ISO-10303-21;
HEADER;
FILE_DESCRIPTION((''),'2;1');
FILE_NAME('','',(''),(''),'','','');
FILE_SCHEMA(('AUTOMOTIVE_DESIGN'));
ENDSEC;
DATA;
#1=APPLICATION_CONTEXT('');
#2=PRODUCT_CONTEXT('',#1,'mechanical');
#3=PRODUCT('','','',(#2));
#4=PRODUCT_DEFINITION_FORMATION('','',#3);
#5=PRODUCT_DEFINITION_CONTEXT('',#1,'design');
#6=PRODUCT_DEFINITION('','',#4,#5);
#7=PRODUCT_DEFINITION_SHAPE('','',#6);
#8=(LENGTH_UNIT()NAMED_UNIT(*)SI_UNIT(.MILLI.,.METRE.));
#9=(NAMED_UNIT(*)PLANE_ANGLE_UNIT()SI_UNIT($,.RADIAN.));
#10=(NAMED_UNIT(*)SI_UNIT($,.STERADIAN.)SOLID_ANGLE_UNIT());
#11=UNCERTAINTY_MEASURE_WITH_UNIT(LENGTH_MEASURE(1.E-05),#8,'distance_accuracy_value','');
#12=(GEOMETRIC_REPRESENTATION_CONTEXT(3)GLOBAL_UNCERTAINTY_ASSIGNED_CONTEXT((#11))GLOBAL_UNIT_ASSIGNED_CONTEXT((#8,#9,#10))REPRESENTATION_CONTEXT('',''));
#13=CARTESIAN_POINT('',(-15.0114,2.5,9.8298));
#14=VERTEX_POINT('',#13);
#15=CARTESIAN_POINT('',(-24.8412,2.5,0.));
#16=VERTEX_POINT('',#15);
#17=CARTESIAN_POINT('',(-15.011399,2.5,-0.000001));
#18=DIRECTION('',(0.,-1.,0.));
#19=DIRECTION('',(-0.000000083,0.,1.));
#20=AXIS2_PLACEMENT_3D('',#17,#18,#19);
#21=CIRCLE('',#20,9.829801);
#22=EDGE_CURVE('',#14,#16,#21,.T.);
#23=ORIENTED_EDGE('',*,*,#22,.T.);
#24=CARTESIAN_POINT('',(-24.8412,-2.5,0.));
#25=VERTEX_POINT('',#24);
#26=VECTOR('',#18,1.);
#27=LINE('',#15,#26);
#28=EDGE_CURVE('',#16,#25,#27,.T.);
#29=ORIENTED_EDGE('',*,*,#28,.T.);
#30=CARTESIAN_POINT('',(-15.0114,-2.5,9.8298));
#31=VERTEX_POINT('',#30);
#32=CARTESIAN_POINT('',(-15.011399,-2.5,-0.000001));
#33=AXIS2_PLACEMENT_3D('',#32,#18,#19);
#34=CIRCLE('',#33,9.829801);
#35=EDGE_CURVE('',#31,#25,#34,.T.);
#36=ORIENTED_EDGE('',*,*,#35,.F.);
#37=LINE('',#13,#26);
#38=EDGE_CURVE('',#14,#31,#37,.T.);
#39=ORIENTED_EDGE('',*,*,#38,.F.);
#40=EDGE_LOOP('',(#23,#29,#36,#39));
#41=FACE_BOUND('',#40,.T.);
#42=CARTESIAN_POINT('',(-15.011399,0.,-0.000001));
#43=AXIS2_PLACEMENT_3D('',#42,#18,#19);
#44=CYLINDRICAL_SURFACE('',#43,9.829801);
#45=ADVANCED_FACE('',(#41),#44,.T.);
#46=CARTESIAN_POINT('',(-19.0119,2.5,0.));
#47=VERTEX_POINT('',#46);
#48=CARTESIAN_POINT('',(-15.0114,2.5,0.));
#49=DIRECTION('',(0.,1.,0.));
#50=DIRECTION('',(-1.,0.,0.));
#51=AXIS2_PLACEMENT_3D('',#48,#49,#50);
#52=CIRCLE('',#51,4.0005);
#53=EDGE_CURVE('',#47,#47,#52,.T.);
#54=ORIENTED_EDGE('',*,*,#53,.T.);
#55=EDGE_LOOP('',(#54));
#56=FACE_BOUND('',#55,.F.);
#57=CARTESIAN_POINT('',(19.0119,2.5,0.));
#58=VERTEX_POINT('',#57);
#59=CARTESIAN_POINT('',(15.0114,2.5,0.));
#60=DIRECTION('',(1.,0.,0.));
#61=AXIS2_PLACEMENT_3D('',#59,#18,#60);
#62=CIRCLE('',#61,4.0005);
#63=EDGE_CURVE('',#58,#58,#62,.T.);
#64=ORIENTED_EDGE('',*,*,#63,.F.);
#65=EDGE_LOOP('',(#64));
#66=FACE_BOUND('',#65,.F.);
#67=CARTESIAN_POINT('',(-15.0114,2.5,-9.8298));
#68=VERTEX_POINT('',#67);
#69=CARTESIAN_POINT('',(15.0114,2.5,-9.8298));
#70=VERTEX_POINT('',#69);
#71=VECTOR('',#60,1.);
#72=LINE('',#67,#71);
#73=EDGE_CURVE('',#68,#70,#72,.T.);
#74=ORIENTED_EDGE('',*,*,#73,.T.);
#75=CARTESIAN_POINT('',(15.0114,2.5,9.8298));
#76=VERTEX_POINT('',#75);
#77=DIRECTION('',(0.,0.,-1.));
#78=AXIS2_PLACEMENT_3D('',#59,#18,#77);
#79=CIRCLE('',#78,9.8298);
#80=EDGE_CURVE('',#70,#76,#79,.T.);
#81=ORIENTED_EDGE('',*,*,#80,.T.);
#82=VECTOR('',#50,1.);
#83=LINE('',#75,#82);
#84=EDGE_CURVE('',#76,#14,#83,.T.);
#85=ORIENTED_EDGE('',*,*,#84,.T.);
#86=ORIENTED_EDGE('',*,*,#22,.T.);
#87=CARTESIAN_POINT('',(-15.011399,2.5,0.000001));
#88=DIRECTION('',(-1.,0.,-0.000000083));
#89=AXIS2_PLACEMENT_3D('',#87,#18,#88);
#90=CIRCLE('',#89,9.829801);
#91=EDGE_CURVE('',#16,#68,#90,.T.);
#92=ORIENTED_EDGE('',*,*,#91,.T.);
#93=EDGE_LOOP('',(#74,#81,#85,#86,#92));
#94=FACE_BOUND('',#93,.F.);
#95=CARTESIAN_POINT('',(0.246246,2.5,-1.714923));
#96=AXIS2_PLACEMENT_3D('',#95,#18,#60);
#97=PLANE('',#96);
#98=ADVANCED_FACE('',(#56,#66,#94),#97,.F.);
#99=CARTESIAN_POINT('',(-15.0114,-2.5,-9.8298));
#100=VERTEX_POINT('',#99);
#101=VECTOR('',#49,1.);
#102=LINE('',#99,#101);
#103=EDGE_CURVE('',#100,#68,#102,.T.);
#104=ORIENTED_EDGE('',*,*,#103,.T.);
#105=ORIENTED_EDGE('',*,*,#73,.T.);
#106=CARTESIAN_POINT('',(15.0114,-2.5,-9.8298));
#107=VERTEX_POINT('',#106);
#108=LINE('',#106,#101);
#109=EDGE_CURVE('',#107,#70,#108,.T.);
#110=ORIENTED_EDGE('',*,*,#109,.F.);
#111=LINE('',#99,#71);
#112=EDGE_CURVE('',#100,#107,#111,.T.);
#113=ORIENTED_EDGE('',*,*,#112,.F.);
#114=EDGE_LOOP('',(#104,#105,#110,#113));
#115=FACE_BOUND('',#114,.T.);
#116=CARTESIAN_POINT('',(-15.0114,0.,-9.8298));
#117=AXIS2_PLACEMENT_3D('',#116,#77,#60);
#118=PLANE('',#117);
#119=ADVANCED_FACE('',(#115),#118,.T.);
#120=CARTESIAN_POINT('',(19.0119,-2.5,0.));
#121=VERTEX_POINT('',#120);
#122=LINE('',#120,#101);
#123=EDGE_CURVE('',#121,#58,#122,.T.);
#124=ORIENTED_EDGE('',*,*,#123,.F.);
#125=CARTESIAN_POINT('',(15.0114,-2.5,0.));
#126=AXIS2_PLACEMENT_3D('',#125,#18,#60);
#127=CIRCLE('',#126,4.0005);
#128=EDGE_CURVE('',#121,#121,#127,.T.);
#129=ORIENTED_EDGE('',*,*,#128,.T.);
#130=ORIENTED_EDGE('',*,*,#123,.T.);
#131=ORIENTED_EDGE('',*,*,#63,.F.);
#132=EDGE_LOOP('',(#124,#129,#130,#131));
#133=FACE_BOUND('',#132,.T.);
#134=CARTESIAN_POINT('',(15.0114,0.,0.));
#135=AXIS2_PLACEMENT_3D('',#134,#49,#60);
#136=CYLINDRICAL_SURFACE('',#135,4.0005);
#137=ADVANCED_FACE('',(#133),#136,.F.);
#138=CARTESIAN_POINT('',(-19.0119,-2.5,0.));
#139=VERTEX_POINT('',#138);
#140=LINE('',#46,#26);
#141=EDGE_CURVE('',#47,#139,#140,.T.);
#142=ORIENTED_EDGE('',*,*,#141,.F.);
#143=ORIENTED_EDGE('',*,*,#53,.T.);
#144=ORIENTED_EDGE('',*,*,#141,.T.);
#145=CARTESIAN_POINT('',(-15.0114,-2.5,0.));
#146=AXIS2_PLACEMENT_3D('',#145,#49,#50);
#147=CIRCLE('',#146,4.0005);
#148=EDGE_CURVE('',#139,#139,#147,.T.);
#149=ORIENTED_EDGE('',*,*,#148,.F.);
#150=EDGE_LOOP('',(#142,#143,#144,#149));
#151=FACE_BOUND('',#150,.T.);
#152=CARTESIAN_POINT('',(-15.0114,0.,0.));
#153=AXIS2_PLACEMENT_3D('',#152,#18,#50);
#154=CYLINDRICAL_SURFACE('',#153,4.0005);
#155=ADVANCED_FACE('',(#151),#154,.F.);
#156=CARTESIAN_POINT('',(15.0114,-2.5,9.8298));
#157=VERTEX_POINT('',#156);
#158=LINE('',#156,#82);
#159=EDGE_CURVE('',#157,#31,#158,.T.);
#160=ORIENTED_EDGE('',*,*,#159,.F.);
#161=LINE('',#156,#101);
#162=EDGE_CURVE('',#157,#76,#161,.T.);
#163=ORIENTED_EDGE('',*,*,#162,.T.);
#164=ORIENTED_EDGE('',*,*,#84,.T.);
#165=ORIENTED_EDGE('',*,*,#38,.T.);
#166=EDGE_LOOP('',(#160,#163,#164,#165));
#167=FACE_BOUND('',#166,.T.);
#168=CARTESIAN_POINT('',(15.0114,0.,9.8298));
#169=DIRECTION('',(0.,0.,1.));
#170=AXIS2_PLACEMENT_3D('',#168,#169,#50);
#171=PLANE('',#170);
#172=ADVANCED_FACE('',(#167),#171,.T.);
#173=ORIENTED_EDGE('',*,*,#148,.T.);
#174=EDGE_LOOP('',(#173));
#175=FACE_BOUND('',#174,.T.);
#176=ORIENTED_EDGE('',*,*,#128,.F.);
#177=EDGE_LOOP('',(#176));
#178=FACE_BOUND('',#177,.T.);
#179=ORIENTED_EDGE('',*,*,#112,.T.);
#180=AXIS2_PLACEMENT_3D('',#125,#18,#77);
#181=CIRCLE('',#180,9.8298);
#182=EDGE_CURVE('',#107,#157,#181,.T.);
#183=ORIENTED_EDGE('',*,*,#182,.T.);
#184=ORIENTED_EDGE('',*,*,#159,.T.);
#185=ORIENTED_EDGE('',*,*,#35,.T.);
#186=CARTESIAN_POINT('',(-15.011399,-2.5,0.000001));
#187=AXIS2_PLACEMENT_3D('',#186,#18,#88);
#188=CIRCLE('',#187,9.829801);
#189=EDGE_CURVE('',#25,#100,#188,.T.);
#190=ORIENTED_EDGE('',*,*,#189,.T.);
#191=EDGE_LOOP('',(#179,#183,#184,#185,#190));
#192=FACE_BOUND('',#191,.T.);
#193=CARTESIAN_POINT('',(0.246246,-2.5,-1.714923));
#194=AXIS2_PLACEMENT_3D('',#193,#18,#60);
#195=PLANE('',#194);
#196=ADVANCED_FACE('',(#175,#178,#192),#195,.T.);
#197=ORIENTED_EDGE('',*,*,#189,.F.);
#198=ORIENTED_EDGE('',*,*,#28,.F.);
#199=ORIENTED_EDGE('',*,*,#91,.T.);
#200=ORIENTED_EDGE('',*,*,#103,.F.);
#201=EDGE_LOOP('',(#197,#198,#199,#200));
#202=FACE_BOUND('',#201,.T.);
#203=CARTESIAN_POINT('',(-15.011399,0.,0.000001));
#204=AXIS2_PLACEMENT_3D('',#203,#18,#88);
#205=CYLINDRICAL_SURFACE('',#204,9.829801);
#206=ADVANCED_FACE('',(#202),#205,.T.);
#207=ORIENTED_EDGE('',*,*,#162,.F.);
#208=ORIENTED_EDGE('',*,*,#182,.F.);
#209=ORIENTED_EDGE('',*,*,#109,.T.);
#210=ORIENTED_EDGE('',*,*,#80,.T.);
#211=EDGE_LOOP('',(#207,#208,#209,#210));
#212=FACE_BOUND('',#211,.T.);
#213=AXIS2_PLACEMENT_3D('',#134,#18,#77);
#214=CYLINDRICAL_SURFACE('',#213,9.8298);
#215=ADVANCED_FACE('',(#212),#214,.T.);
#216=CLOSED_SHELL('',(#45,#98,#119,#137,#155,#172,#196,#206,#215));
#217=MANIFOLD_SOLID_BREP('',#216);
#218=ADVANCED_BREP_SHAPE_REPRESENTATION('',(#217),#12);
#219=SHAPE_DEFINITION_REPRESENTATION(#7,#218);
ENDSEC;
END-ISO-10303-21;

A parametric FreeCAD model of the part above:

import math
import FreeCAD as App
import Part
import Sketcher
Q = App.Units.Quantity

doc = App.newDocument("Part")
body = doc.addObject("PartDesign::Body", "Body")

# Sketch on XZ plane
sketch1 = doc.addObject("Sketcher::SketchObject", "Sketch")
body.addObject(sketch1)
sketch1.AttachmentSupport = (doc.XZ_Plane, [""])
sketch1.MapMode = "FlatFace"
sketch1.addGeometry(Part.LineSegment(App.Vector(15.0114, 9.8298, 0), App.Vector(-15.0114, 9.8298, 0)), False)
sketch1.addGeometry(Part.ArcOfCircle(Part.Circle(App.Vector(-15.011399, -0.000001, 0), App.Vector(0, 0, 1), 9.829801), math.radians(90.000005), math.radians(179.999995)), False)
sketch1.addGeometry(Part.ArcOfCircle(Part.Circle(App.Vector(-15.011399, 0.000001, 0), App.Vector(0, 0, 1), 9.829801), math.radians(-179.999995), math.radians(-90.000005)), False)
sketch1.addGeometry(Part.LineSegment(App.Vector(-15.0114, -9.8298, 0), App.Vector(15.0114, -9.8298, 0)), False)
sketch1.addGeometry(Part.ArcOfCircle(Part.Circle(App.Vector(15.0114, 0, 0), App.Vector(0, 0, 1), 9.8298), math.radians(-90), math.radians(90)), False)
sketch1.addGeometry(Part.Circle(App.Vector(-15.0114, 0, 0), App.Vector(0, 0, 1), 4.0005), False)
sketch1.addGeometry(Part.Circle(App.Vector(15.0114, 0, 0), App.Vector(0, 0, 1), 4.0005), False)
sketch1.addConstraint(Sketcher.Constraint("Tangent", 0, 2, 1, 1))
sketch1.addConstraint(Sketcher.Constraint("Tangent", 1, 2, 2, 1))
sketch1.addConstraint(Sketcher.Constraint("Tangent", 2, 2, 3, 1))
sketch1.addConstraint(Sketcher.Constraint("Tangent", 3, 2, 4, 1))
sketch1.addConstraint(Sketcher.Constraint("Tangent", 4, 2, 0, 1))
sketch1.addConstraint(Sketcher.Constraint("Horizontal", 0))
sketch1.addConstraint(Sketcher.Constraint("Horizontal", 3))
sketch1.addConstraint(Sketcher.Constraint("Coincident", 5, 3, 1, 3))
sketch1.addConstraint(Sketcher.Constraint("Coincident", 6, 3, 4, 3))
sketch1.addConstraint(Sketcher.Constraint("Equal", 1, 2))
sketch1.addConstraint(Sketcher.Constraint("Equal", 5, 6))
sketch1.addConstraint(Sketcher.Constraint("Symmetric", 1, 3, 4, 3, -1, 1))
sketch1.addConstraint(Sketcher.Constraint("PointOnObject", 1, 2, -1))
sketch1.addConstraint(Sketcher.Constraint("Diameter", 5, Q("0.315 in")))
sketch1.addConstraint(Sketcher.Constraint("Radius", 1, Q("0.387 in")))
sketch1.addConstraint(Sketcher.Constraint("DistanceX", 0, 2, 0, 1, Q("1.182 in")))
pad1 = doc.addObject("PartDesign::Pad", "Pad")
body.addObject(pad1)
pad1.Profile = sketch1
pad1.Length = 5
pad1.Midplane = True

doc.recompute()
